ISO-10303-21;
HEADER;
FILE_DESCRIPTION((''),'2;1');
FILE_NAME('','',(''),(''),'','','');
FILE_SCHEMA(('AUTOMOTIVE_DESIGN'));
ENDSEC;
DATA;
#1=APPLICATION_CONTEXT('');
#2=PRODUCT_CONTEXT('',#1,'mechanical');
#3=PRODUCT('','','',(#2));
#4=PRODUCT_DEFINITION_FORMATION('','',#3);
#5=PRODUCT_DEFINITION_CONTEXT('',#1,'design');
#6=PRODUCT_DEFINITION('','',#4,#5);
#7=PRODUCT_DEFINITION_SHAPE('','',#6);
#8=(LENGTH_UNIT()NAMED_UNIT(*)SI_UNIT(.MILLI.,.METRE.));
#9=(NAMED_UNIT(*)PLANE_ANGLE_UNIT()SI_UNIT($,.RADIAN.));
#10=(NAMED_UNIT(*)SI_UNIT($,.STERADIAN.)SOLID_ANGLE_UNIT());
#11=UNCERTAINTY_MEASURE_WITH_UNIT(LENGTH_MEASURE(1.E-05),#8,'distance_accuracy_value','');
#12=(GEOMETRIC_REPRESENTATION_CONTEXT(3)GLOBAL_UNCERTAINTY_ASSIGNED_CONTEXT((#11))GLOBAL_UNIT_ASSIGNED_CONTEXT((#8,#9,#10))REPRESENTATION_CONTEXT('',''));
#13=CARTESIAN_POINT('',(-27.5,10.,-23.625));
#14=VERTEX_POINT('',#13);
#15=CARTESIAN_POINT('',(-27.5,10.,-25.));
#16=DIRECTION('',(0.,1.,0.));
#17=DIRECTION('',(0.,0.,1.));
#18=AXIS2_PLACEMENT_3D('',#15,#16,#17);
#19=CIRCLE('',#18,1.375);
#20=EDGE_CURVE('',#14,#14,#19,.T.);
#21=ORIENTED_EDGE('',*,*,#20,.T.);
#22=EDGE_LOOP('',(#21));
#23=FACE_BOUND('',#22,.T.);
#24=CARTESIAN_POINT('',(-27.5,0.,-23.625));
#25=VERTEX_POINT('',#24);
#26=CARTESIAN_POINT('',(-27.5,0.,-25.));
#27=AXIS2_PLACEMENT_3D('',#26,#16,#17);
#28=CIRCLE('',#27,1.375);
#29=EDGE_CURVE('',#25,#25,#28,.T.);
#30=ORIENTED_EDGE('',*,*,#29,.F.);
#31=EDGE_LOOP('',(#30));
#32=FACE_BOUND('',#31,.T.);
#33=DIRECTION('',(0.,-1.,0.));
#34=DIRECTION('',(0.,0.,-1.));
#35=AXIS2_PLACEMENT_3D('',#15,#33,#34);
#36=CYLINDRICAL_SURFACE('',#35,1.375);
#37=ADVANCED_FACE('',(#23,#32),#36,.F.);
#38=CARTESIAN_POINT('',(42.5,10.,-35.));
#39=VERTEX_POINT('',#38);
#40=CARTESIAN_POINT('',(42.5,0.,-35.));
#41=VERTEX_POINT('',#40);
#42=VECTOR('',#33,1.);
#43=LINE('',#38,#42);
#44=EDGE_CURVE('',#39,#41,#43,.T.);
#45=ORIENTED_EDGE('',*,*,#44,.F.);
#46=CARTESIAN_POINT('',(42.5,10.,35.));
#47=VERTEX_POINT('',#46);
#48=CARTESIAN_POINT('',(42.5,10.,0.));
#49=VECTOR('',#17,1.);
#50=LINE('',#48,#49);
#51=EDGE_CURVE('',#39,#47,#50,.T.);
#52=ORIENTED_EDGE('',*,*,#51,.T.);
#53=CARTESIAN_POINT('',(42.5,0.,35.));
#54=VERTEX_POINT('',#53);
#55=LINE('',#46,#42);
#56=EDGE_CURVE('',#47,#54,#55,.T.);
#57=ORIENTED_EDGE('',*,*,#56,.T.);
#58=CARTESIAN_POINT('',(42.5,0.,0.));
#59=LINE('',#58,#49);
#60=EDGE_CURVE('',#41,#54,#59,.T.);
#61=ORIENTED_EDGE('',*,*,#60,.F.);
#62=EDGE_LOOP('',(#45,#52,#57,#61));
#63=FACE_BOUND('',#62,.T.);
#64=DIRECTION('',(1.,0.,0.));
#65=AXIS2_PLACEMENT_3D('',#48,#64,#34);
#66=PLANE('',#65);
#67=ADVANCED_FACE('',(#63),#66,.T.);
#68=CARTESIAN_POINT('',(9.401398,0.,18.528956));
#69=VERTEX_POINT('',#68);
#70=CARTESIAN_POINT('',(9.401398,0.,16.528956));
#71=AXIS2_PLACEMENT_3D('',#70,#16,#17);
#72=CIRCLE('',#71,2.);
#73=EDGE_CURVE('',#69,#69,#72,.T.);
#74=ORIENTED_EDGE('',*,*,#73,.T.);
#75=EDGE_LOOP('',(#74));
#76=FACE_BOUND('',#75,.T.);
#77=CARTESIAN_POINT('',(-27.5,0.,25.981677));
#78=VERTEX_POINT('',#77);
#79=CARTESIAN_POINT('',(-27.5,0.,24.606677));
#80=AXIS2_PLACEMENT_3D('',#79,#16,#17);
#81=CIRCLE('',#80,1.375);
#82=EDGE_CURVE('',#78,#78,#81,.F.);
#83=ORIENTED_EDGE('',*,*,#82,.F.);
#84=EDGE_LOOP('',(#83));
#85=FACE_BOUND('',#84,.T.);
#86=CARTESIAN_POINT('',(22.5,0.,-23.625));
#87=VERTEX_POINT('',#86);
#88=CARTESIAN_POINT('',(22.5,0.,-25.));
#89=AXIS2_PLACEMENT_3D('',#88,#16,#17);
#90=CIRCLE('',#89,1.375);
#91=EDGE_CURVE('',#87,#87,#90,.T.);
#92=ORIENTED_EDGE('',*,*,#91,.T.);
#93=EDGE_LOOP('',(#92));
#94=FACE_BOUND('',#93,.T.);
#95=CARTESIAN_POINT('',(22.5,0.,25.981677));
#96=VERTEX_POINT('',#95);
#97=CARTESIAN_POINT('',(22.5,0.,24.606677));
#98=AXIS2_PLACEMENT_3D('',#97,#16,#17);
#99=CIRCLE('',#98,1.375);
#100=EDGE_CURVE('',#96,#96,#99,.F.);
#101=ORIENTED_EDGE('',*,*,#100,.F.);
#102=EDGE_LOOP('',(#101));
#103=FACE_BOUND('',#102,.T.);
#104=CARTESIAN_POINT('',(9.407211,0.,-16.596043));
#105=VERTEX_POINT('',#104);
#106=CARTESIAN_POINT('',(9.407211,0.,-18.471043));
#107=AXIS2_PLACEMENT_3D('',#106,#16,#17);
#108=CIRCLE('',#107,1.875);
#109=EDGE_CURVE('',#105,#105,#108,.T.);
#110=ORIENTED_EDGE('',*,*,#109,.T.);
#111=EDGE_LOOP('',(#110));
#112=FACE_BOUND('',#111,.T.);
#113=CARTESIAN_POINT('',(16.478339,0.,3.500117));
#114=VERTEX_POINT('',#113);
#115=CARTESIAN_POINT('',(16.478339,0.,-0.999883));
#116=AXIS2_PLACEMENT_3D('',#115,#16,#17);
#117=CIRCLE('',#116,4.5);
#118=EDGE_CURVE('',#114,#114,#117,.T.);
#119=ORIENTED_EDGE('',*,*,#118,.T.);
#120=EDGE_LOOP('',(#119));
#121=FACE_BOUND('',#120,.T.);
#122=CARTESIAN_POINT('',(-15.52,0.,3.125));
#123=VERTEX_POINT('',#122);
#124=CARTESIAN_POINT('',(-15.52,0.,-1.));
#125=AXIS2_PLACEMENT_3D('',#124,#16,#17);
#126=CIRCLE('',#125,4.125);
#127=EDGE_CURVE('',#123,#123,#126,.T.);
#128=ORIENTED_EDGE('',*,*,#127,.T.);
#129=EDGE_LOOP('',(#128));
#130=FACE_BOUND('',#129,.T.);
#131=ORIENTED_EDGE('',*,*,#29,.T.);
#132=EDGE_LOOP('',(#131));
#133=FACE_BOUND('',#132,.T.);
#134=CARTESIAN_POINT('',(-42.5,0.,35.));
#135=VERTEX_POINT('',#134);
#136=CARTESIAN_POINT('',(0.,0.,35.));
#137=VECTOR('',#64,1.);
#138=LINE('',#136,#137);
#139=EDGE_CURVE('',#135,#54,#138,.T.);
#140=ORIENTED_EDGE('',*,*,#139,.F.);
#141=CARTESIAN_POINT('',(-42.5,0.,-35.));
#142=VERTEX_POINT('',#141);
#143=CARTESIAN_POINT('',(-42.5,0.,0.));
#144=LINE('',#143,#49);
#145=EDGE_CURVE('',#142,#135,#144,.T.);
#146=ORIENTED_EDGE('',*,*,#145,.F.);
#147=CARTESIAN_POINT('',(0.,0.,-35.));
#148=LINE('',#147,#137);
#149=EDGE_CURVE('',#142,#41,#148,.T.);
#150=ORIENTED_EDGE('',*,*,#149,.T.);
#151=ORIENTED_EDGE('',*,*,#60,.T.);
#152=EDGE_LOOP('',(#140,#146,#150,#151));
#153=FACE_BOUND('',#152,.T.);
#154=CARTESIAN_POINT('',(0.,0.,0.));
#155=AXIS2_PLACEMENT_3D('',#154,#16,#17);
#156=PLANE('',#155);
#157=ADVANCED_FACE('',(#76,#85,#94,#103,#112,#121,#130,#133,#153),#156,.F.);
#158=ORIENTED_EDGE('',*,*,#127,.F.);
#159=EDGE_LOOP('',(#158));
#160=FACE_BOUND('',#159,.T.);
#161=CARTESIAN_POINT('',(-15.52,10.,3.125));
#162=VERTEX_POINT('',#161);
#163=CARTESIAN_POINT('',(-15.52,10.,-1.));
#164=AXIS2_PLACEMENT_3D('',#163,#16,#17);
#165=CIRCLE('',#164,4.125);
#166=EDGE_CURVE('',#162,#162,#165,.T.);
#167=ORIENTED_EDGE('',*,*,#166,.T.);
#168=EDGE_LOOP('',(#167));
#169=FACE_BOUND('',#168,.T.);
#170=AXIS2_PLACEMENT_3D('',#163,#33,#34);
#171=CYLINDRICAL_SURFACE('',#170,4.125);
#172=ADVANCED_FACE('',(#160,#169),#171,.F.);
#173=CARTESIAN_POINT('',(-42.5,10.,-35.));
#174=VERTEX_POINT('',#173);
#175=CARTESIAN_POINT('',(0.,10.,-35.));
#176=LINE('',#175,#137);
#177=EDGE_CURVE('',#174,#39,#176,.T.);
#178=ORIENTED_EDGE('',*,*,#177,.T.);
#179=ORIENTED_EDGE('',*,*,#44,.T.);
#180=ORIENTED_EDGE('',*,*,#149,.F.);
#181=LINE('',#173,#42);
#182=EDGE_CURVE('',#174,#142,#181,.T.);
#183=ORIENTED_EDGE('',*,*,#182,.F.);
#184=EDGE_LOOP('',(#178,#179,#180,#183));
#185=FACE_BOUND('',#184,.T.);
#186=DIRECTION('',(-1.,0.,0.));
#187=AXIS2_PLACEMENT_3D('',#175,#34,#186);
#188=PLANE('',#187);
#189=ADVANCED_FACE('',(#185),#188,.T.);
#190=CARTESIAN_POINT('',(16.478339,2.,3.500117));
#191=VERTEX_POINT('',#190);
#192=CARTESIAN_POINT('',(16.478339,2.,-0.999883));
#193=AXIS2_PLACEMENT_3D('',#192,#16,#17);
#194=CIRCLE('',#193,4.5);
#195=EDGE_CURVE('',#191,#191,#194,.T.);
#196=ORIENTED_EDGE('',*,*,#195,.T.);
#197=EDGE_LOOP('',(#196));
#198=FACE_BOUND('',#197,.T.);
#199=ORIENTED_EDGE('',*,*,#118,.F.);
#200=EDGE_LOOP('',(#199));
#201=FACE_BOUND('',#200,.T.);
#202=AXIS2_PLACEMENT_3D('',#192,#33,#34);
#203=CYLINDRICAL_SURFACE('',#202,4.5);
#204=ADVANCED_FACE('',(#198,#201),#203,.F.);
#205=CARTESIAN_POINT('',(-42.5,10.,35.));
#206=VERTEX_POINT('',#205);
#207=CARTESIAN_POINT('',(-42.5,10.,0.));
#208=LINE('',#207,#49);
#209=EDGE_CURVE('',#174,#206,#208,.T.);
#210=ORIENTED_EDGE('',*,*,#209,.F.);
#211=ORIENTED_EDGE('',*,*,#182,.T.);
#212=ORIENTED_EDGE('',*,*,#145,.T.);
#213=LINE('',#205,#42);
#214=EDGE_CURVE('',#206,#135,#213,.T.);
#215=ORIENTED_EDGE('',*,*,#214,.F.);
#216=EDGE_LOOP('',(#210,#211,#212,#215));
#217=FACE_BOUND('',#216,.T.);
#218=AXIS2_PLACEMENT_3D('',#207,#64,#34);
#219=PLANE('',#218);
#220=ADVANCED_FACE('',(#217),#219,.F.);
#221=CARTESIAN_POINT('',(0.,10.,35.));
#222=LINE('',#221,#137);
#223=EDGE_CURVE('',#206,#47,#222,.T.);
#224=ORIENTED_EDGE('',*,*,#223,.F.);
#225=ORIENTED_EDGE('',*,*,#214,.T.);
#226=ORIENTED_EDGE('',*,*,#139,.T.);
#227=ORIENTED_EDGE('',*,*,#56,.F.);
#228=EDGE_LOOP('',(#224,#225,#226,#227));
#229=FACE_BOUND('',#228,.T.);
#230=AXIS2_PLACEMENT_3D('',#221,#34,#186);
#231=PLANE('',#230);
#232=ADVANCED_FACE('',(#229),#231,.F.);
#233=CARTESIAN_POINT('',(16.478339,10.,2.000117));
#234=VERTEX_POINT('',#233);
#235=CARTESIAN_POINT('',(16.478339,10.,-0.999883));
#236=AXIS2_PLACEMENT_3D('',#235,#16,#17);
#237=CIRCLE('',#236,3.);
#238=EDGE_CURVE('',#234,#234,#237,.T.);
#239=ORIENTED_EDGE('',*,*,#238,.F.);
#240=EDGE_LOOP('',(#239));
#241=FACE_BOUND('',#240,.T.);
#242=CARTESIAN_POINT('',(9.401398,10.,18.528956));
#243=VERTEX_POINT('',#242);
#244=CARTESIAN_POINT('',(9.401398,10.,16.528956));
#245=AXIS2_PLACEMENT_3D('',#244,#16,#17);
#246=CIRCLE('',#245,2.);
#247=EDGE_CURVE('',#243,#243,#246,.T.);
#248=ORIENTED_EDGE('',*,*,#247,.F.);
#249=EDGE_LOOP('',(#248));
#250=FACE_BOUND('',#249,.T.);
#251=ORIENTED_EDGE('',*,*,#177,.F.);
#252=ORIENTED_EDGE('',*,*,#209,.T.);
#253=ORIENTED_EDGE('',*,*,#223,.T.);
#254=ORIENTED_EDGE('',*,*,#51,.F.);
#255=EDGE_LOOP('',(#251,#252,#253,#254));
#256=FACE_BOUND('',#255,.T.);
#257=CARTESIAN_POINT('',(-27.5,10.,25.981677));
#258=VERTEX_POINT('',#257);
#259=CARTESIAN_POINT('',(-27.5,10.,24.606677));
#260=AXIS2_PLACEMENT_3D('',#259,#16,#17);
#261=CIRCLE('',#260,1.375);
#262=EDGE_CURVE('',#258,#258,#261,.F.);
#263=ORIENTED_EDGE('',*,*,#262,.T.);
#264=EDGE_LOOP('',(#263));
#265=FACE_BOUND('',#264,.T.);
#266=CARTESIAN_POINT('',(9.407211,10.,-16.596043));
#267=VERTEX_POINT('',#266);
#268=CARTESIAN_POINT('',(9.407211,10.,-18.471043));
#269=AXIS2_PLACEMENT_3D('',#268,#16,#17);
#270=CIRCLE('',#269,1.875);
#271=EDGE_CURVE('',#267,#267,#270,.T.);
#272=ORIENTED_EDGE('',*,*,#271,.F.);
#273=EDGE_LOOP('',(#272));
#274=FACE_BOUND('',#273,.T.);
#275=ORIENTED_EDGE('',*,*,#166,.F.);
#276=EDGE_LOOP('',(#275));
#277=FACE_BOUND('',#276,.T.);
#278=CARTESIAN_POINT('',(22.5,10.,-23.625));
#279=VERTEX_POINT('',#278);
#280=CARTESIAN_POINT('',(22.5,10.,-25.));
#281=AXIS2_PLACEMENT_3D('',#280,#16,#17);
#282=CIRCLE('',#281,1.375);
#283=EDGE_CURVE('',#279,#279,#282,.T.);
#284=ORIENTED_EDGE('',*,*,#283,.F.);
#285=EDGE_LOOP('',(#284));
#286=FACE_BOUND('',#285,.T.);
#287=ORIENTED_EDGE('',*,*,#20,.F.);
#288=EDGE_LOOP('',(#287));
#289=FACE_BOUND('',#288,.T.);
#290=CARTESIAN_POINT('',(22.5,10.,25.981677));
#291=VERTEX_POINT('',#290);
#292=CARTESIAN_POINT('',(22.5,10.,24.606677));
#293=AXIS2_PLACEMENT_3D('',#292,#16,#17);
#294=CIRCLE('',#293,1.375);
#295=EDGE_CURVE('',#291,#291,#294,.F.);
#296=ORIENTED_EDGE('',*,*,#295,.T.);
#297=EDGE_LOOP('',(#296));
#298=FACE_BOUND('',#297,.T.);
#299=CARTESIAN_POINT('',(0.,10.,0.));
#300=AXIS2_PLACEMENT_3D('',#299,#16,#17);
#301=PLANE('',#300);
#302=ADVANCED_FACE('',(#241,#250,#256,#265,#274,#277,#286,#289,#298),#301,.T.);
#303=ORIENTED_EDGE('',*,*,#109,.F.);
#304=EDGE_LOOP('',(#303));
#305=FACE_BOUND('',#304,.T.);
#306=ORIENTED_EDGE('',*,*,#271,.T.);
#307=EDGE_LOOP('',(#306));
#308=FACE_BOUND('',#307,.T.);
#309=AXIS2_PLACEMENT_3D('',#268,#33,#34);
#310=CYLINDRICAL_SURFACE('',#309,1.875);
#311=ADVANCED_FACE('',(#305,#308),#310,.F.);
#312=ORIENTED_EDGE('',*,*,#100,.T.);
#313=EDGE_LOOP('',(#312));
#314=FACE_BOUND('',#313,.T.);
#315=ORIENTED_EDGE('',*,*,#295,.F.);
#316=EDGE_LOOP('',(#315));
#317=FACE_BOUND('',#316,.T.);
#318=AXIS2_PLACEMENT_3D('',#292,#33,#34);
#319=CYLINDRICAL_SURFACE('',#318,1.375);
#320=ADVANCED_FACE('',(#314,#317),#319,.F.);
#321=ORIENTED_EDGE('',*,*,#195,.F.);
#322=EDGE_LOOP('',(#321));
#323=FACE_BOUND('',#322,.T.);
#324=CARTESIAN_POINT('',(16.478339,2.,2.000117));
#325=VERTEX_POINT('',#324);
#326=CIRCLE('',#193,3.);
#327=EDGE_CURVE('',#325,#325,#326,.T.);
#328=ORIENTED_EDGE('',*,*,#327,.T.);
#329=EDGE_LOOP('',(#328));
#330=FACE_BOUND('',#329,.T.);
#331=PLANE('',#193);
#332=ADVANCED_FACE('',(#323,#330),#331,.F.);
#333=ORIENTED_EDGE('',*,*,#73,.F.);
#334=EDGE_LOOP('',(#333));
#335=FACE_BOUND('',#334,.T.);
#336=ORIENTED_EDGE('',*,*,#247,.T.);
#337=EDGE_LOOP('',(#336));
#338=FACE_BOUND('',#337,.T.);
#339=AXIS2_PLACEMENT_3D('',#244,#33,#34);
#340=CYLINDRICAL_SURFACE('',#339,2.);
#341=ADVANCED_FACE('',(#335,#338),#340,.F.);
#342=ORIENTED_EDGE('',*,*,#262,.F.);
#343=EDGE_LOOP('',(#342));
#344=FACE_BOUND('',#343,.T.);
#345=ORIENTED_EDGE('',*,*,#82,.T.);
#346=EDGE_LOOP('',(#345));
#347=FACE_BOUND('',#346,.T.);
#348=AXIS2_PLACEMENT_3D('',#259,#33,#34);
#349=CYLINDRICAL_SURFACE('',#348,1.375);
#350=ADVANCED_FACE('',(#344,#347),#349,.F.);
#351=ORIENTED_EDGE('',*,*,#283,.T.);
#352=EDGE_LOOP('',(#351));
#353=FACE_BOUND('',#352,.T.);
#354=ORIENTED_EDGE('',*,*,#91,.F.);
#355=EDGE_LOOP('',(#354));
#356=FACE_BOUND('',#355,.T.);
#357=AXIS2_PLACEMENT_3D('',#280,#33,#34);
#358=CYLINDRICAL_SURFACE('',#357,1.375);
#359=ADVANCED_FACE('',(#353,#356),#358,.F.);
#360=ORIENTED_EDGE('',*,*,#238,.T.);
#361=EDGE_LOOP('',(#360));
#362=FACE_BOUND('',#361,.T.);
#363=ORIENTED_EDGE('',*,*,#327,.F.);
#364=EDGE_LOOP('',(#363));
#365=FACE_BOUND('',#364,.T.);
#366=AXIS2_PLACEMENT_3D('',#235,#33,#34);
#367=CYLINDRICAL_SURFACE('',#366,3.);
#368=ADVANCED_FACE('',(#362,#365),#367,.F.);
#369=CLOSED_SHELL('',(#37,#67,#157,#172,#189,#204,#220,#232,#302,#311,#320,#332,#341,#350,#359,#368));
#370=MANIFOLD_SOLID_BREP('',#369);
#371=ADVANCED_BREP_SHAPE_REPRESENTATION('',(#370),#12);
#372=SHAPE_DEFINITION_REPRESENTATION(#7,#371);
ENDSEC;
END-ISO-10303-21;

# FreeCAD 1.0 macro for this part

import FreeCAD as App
import Part
import Sketcher
Q = App.Units.Quantity


def add_polygon(sketch, points):
    """Adds a closed chain of lines whose ends are joined by coincident constraints."""
    first, n = sketch.GeometryCount, len(points)
    for a, b in zip(points, points[1:] + points[:1]):
        sketch.addGeometry(Part.LineSegment(App.Vector(*a, 0), App.Vector(*b, 0)), False)
    for i in range(n):
        sketch.addConstraint(Sketcher.Constraint("Coincident", first + i, 2, first + (i + 1) % n, 1))

doc = App.newDocument("Part")
body = doc.addObject("PartDesign::Body", "Body")

sketch1 = body.newObject("Sketcher::SketchObject", "Sketch")
sketch1.AttachmentSupport = (doc.getObject("XZ_Plane"), [""])
sketch1.MapMode = "FlatFace"
add_polygon(sketch1, [(-42.5, -35), (-42.5, 35), (42.5, 35), (42.5, -35)])
sketch1.addGeometry(Part.Circle(App.Vector(-27.5, 24.6, 0), App.Vector(0, 0, 1), 1.4), False)
sketch1.addGeometry(Part.Circle(App.Vector(9.4, 16.5, 0), App.Vector(0, 0, 1), 2), False)
sketch1.addGeometry(Part.Circle(App.Vector(22.5, 24.6, 0), App.Vector(0, 0, 1), 1.4), False)
sketch1.addGeometry(Part.Circle(App.Vector(-15.5, -1, 0), App.Vector(0, 0, 1), 4.1), False)
sketch1.addGeometry(Part.Circle(App.Vector(-27.5, -25, 0), App.Vector(0, 0, 1), 1.4), False)
sketch1.addGeometry(Part.Circle(App.Vector(16.5, -1, 0), App.Vector(0, 0, 1), 3), False)
sketch1.addGeometry(Part.Circle(App.Vector(9.4, -18.5, 0), App.Vector(0, 0, 1), 1.9), False)
sketch1.addGeometry(Part.Circle(App.Vector(22.5, -25, 0), App.Vector(0, 0, 1), 1.4), False)
sketch1.addConstraint([
    Sketcher.Constraint("Vertical", 0),
    Sketcher.Constraint("Horizontal", 1),
    Sketcher.Constraint("Vertical", 2),
    Sketcher.Constraint("Horizontal", 3),
    Sketcher.Constraint("Equal", 4, 6),
    Sketcher.Constraint("Equal", 6, 8),
    Sketcher.Constraint("Equal", 8, 11),
    Sketcher.Constraint("Symmetric", 0, 2, 2, 2, -1, 1),
    Sketcher.Constraint("Horizontal", 4, 3, 6, 3),
    Sketcher.Constraint("Horizontal", 8, 3, 11, 3),
    Sketcher.Constraint("Vertical", 4, 3, 8, 3),
    Sketcher.Constraint("Vertical", 6, 3, 11, 3),
    Sketcher.Constraint("Diameter", 5, Q("4 mm")),
    Sketcher.Constraint("Diameter", 9, Q("6 mm")),
    Sketcher.Constraint("Diameter", 4, Q("2.75 mm")),
    Sketcher.Constraint("Diameter", 7, Q("8.25 mm")),
    Sketcher.Constraint("Diameter", 10, Q("3.75 mm")),
    Sketcher.Constraint("DistanceX", 1, 1, 1, 2, Q("85 mm")),
    Sketcher.Constraint("DistanceY", 0, 1, 0, 2, Q("70 mm")),
    Sketcher.Constraint("DistanceY", 7, 3, -1, 1, Q("1 mm")),
    Sketcher.Constraint("DistanceY", 8, 3, -1, 1, Q("25 mm")),
    Sketcher.Constraint("DistanceX", 4, 3, 6, 3, Q("50 mm")),
    Sketcher.Constraint("DistanceY", 10, 3, 5, 3, Q("35 mm")),
    Sketcher.Constraint("DistanceX", 0, 2, 4, 3, Q("15 mm")),
    Sketcher.Constraint("DistanceX", 7, 3, -1, 1, Q("15.52 mm")),
    Sketcher.Constraint("DistanceX", -1, 1, 5, 3, Q("9.401398 mm")),
    Sketcher.Constraint("DistanceX", -1, 1, 9, 3, Q("16.478339 mm")),
    Sketcher.Constraint("DistanceX", -1, 1, 10, 3, Q("9.407211 mm")),
    Sketcher.Constraint("DistanceY", 5, 3, 4, 3, Q("8.077721 mm")),
    Sketcher.Constraint("DistanceY", 9, 3, 5, 3, Q("17.528839 mm")),
    Sketcher.Constraint("DistanceY", -1, 1, 4, 3, Q("24.606677 mm")),
])
pad1 = body.newObject("PartDesign::Pad", "Pad")
pad1.Profile = sketch1
pad1.Length = 10
pad1.Reversed = True

sketch2 = body.newObject("Sketcher::SketchObject", "Sketch001")
sketch2.AttachmentSupport = (doc.getObject("XZ_Plane"), [""])
sketch2.MapMode = "FlatFace"
sketch2.addGeometry(Part.Circle(App.Vector(16.5, -1, 0), App.Vector(0, 0, 1), 4.5), False)
sketch2.addConstraint([
    Sketcher.Constraint("Diameter", 0, Q("9 mm")),
    Sketcher.Constraint("DistanceX", -1, 1, 0, 3, Q("16.478339 mm")),
    Sketcher.Constraint("DistanceY", 0, 3, -1, 1, Q("0.999883 mm")),
])
pocket1 = body.newObject("PartDesign::Pocket", "Pocket")
pocket1.Profile = sketch2
pocket1.Length = 2

doc.recompute()
